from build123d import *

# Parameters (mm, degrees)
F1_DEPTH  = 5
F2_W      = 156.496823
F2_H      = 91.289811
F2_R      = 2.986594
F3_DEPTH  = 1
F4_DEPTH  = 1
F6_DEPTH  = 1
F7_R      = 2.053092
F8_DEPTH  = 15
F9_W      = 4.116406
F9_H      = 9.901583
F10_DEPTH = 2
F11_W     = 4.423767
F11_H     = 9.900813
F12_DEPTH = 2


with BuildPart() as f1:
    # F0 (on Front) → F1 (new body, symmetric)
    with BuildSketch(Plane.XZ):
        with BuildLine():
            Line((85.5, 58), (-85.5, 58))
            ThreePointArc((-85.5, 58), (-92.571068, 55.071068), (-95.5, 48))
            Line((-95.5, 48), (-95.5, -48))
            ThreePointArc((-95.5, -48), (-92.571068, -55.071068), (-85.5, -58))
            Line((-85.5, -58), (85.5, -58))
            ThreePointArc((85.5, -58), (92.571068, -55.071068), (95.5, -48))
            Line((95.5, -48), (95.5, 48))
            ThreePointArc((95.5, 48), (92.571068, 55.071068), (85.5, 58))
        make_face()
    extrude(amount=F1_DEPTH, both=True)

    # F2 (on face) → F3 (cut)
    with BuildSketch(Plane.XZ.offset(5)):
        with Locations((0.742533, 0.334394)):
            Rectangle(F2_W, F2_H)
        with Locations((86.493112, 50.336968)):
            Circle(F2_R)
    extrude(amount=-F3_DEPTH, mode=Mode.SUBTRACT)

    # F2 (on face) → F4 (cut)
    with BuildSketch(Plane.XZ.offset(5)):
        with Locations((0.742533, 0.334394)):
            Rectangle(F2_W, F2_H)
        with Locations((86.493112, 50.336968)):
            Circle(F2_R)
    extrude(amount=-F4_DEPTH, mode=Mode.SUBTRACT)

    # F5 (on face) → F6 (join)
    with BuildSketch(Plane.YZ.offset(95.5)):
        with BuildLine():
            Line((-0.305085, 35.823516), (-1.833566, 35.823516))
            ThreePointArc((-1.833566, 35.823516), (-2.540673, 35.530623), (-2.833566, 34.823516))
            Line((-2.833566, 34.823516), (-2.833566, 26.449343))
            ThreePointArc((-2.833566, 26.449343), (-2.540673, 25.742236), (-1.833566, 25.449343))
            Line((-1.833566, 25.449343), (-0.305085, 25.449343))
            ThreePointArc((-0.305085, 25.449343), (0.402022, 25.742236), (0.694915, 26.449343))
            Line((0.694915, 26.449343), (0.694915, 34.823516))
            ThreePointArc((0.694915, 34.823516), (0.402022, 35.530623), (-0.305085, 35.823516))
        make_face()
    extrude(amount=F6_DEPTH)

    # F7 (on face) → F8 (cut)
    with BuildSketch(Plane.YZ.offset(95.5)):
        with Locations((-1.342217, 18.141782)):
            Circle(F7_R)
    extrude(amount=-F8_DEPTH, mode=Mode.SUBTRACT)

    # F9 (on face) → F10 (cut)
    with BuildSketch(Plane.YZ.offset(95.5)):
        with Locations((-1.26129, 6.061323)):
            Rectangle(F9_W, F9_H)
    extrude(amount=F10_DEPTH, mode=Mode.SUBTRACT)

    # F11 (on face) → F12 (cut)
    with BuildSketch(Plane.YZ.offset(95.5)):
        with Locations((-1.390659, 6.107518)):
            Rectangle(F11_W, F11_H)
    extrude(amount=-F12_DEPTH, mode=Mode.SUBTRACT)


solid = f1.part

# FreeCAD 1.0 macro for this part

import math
import FreeCAD as App
import Part
import Sketcher
Q = App.Units.Quantity

doc = App.newDocument("Part")
body = doc.addObject("PartDesign::Body", "Body")

# Sketch on XZ plane
sketch1 = body.newObject("Sketcher::SketchObject", "Sketch")
sketch1.AttachmentSupport = (doc.getObject("XZ_Plane"), [""])
sketch1.MapMode = "FlatFace"
sketch1.addGeometry([
    Part.LineSegment(App.Vector(86, 58, 0), App.Vector(-86, 58, 0)),  # 0
    Part.ArcOfCircle(Part.Circle(App.Vector(-86, 48, 0), App.Vector(0, 0, 1), 10), math.radians(90), math.radians(180)),  # 1
    Part.LineSegment(App.Vector(-96, 48, 0), App.Vector(-96, -48, 0)),  # 2
    Part.ArcOfCircle(Part.Circle(App.Vector(-86, -48, 0), App.Vector(0, 0, 1), 10), math.radians(180), math.radians(270)),  # 3
    Part.LineSegment(App.Vector(-86, -58, 0), App.Vector(86, -58, 0)),  # 4
    Part.ArcOfCircle(Part.Circle(App.Vector(86, -48, 0), App.Vector(0, 0, 1), 10), math.radians(-90), math.radians(0)),  # 5
    Part.LineSegment(App.Vector(96, -48, 0), App.Vector(96, 48, 0)),  # 6
    Part.ArcOfCircle(Part.Circle(App.Vector(86, 48, 0), App.Vector(0, 0, 1), 10), math.radians(0), math.radians(90)),  # 7
], False)
sketch1.addConstraint([
    Sketcher.Constraint("Tangent", 0, 2, 1, 1),
    Sketcher.Constraint("Tangent", 1, 2, 2, 1),
    Sketcher.Constraint("Tangent", 2, 2, 3, 1),
    Sketcher.Constraint("Tangent", 3, 2, 4, 1),
    Sketcher.Constraint("Tangent", 4, 2, 5, 1),
    Sketcher.Constraint("Tangent", 5, 2, 6, 1),
    Sketcher.Constraint("Tangent", 6, 2, 7, 1),
    Sketcher.Constraint("Tangent", 7, 2, 0, 1),
    Sketcher.Constraint("Horizontal", 0),
    Sketcher.Constraint("Vertical", 2),
    Sketcher.Constraint("Horizontal", 4),
    Sketcher.Constraint("Vertical", 6),
    Sketcher.Constraint("Equal", 1, 3),
    Sketcher.Constraint("Equal", 3, 5),
    Sketcher.Constraint("Equal", 5, 7),
    Sketcher.Constraint("Symmetric", 1, 3, 5, 3, -1, 1),
    Sketcher.Constraint("Radius", 1, Q("9.999999 mm")),
    Sketcher.Constraint("DistanceX", 0, 2, 0, 1, Q("171 mm")),
    Sketcher.Constraint("DistanceY", 2, 2, 2, 1, Q("96 mm")),
])
pad1 = body.newObject("PartDesign::Pad", "Pad")
pad1.Profile = sketch1
pad1.Length = 10
pad1.Midplane = True

# Sketch on XZ plane
sketch2 = body.newObject("Sketcher::SketchObject", "Sketch001")
sketch2.AttachmentSupport = (doc.getObject("XZ_Plane"), [""])
sketch2.MapMode = "FlatFace"
sketch2.AttachmentOffset = App.Placement(App.Vector(0, 0, 5), App.Rotation())
sketch2.addGeometry([
    Part.LineSegment(App.Vector(-77.5, 46, 0), App.Vector(-77.5, -45.3, 0)),  # 0
    Part.LineSegment(App.Vector(-77.5, -45.3, 0), App.Vector(79, -45.3, 0)),  # 1
    Part.LineSegment(App.Vector(79, -45.3, 0), App.Vector(79, 46, 0)),  # 2
    Part.LineSegment(App.Vector(79, 46, 0), App.Vector(-77.5, 46, 0)),  # 3
    Part.Circle(App.Vector(86.5, 50.3, 0), App.Vector(0, 0, 1), 3),  # 4
], False)
sketch2.addConstraint([
    Sketcher.Constraint("Coincident", 0, 2, 1, 1),
    Sketcher.Constraint("Coincident", 1, 2, 2, 1),
    Sketcher.Constraint("Coincident", 2, 2, 3, 1),
    Sketcher.Constraint("Coincident", 3, 2, 0, 1),
    Sketcher.Constraint("Vertical", 0),
    Sketcher.Constraint("Horizontal", 1),
    Sketcher.Constraint("Vertical", 2),
    Sketcher.Constraint("Horizontal", 3),
    Sketcher.Constraint("Diameter", 4, Q("5.973188 mm")),
    Sketcher.Constraint("DistanceY", 0, 2, 0, 1, Q("91.289811 mm")),
    Sketcher.Constraint("DistanceY", -1, 1, 2, 2, Q("45.9793 mm")),
    Sketcher.Constraint("DistanceX", 1, 1, 1, 2, Q("156.496823 mm")),
    Sketcher.Constraint("DistanceX", -1, 1, 4, 3, Q("86.493112 mm")),
    Sketcher.Constraint("DistanceX", 0, 2, -1, 1, Q("77.505878 mm")),
    Sketcher.Constraint("DistanceY", 0, 2, 4, 3, Q("95.64748 mm")),
])
pocket1 = body.newObject("PartDesign::Pocket", "Pocket")
pocket1.Profile = sketch2
pocket1.Length = 1

# Sketch on XZ plane
sketch3 = body.newObject("Sketcher::SketchObject", "Sketch002")
sketch3.AttachmentSupport = (doc.getObject("XZ_Plane"), [""])
sketch3.MapMode = "FlatFace"
sketch3.AttachmentOffset = App.Placement(App.Vector(0, 0, 5), App.Rotation())
sketch3.addGeometry([
    Part.LineSegment(App.Vector(-77.5, 46, 0), App.Vector(-77.5, -45.3, 0)),  # 0
    Part.LineSegment(App.Vector(-77.5, -45.3, 0), App.Vector(79, -45.3, 0)),  # 1
    Part.LineSegment(App.Vector(79, -45.3, 0), App.Vector(79, 46, 0)),  # 2
    Part.LineSegment(App.Vector(79, 46, 0), App.Vector(-77.5, 46, 0)),  # 3
    Part.Circle(App.Vector(86.5, 50.3, 0), App.Vector(0, 0, 1), 3),  # 4
], False)
sketch3.addConstraint([
    Sketcher.Constraint("Coincident", 0, 2, 1, 1),
    Sketcher.Constraint("Coincident", 1, 2, 2, 1),
    Sketcher.Constraint("Coincident", 2, 2, 3, 1),
    Sketcher.Constraint("Coincident", 3, 2, 0, 1),
    Sketcher.Constraint("Vertical", 0),
    Sketcher.Constraint("Horizontal", 1),
    Sketcher.Constraint("Vertical", 2),
    Sketcher.Constraint("Horizontal", 3),
    Sketcher.Constraint("Diameter", 4, Q("5.973188 mm")),
    Sketcher.Constraint("DistanceY", 0, 2, 0, 1, Q("91.289811 mm")),
    Sketcher.Constraint("DistanceY", -1, 1, 2, 2, Q("45.9793 mm")),
    Sketcher.Constraint("DistanceX", 1, 1, 1, 2, Q("156.496823 mm")),
    Sketcher.Constraint("DistanceX", -1, 1, 4, 3, Q("86.493112 mm")),
    Sketcher.Constraint("DistanceX", 0, 2, -1, 1, Q("77.505878 mm")),
    Sketcher.Constraint("DistanceY", 0, 2, 4, 3, Q("95.64748 mm")),
])
pocket2 = body.newObject("PartDesign::Pocket", "Pocket001")
pocket2.Profile = sketch3
pocket2.Length = 1

# Sketch on YZ plane
sketch4 = body.newObject("Sketcher::SketchObject", "Sketch003")
sketch4.AttachmentSupport = (doc.getObject("YZ_Plane"), [""])
sketch4.MapMode = "FlatFace"
sketch4.AttachmentOffset = App.Placement(App.Vector(0, 0, 95.5), App.Rotation())
sketch4.addGeometry([
    Part.LineSegment(App.Vector(-0.3, 35.8, 0), App.Vector(-1.8, 35.8, 0)),  # 0
    Part.ArcOfCircle(Part.Circle(App.Vector(-1.8, 34.8, 0), App.Vector(0, 0, 1), 1), math.radians(90), math.radians(180)),  # 1
    Part.LineSegment(App.Vector(-2.8, 34.8, 0), App.Vector(-2.8, 26.4, 0)),  # 2
    Part.ArcOfCircle(Part.Circle(App.Vector(-1.8, 26.4, 0), App.Vector(0, 0, 1), 1), math.radians(180), math.radians(270)),  # 3
    Part.LineSegment(App.Vector(-1.8, 25.4, 0), App.Vector(-0.3, 25.4, 0)),  # 4
    Part.ArcOfCircle(Part.Circle(App.Vector(-0.3, 26.4, 0), App.Vector(0, 0, 1), 1), math.radians(-90), math.radians(0)),  # 5
    Part.LineSegment(App.Vector(0.7, 26.4, 0), App.Vector(0.7, 34.8, 0)),  # 6
    Part.ArcOfCircle(Part.Circle(App.Vector(-0.3, 34.8, 0), App.Vector(0, 0, 1), 1), math.radians(0), math.radians(90)),  # 7
], False)
sketch4.addConstraint([
    Sketcher.Constraint("Tangent", 0, 2, 1, 1),
    Sketcher.Constraint("Tangent", 1, 2, 2, 1),
    Sketcher.Constraint("Tangent", 2, 2, 3, 1),
    Sketcher.Constraint("Tangent", 3, 2, 4, 1),
    Sketcher.Constraint("Tangent", 4, 2, 5, 1),
    Sketcher.Constraint("Tangent", 5, 2, 6, 1),
    Sketcher.Constraint("Tangent", 6, 2, 7, 1),
    Sketcher.Constraint("Tangent", 7, 2, 0, 1),
    Sketcher.Constraint("Horizontal", 0),
    Sketcher.Constraint("Vertical", 2),
    Sketcher.Constraint("Horizontal", 4),
    Sketcher.Constraint("Vertical", 6),
    Sketcher.Constraint("Equal", 1, 3),
    Sketcher.Constraint("Equal", 3, 5),
    Sketcher.Constraint("Equal", 5, 7),
    Sketcher.Constraint("Radius", 1, Q("0.999999 mm")),
    Sketcher.Constraint("DistanceX", 0, 2, 0, 1, Q("1.528481 mm")),
    Sketcher.Constraint("DistanceY", 2, 2, 2, 1, Q("8.374173 mm")),
    Sketcher.Constraint("DistanceX", 1, 3, -1, 1, Q("1.833567 mm")),
    Sketcher.Constraint("DistanceY", -1, 1, 1, 3, Q("34.823517 mm")),
])
pad2 = body.newObject("PartDesign::Pad", "Pad001")
pad2.Profile = sketch4
pad2.Length = 1

# Sketch on YZ plane
sketch5 = body.newObject("Sketcher::SketchObject", "Sketch004")
sketch5.AttachmentSupport = (doc.getObject("YZ_Plane"), [""])
sketch5.MapMode = "FlatFace"
sketch5.AttachmentOffset = App.Placement(App.Vector(0, 0, 95.5), App.Rotation())
sketch5.addGeometry(Part.Circle(App.Vector(-1.3, 18.1, 0), App.Vector(0, 0, 1), 2.1), False)
sketch5.addConstraint([
    Sketcher.Constraint("Diameter", 0, Q("4.106184 mm")),
    Sketcher.Constraint("DistanceY", -1, 1, 0, 3, Q("18.141782 mm")),
    Sketcher.Constraint("DistanceX", 0, 3, -1, 1, Q("1.342217 mm")),
])
pocket3 = body.newObject("PartDesign::Pocket", "Pocket002")
pocket3.Profile = sketch5
pocket3.Length = 15

# Sketch on YZ plane
sketch6 = body.newObject("Sketcher::SketchObject", "Sketch005")
sketch6.AttachmentSupport = (doc.getObject("YZ_Plane"), [""])
sketch6.MapMode = "FlatFace"
sketch6.AttachmentOffset = App.Placement(App.Vector(0, 0, 95.5), App.Rotation())
sketch6.addGeometry([
    Part.LineSegment(App.Vector(-3.3, 11, 0), App.Vector(-3.3, 1.1, 0)),
    Part.LineSegment(App.Vector(-3.3, 1.1, 0), App.Vector(0.8, 1.1, 0)),
    Part.LineSegment(App.Vector(0.8, 1.1, 0), App.Vector(0.8, 11, 0)),
    Part.LineSegment(App.Vector(0.8, 11, 0), App.Vector(-3.3, 11, 0)),
], False)
sketch6.addConstraint([
    Sketcher.Constraint("Coincident", 0, 2, 1, 1),
    Sketcher.Constraint("Coincident", 1, 2, 2, 1),
    Sketcher.Constraint("Coincident", 2, 2, 3, 1),
    Sketcher.Constraint("Coincident", 3, 2, 0, 1),
    Sketcher.Constraint("Vertical", 0),
    Sketcher.Constraint("Horizontal", 1),
    Sketcher.Constraint("Vertical", 2),
    Sketcher.Constraint("Horizontal", 3),
    Sketcher.Constraint("DistanceX", 1, 1, 1, 2, Q("4.116406 mm")),
    Sketcher.Constraint("DistanceY", 0, 2, 0, 1, Q("9.901583 mm")),
    Sketcher.Constraint("DistanceY", -1, 1, 0, 2, Q("1.110532 mm")),
    Sketcher.Constraint("DistanceX", 0, 2, -1, 1, Q("3.319493 mm")),
])
pocket4 = body.newObject("PartDesign::Pocket", "Pocket003")
pocket4.Profile = sketch6
pocket4.Length = 2
pocket4.Reversed = True

# Sketch on YZ plane
sketch7 = body.newObject("Sketcher::SketchObject", "Sketch006")
sketch7.AttachmentSupport = (doc.getObject("YZ_Plane"), [""])
sketch7.MapMode = "FlatFace"
sketch7.AttachmentOffset = App.Placement(App.Vector(0, 0, 95.5), App.Rotation())
sketch7.addGeometry([
    Part.LineSegment(App.Vector(-3.6, 11.1, 0), App.Vector(-3.6, 1.2, 0)),
    Part.LineSegment(App.Vector(-3.6, 1.2, 0), App.Vector(0.8, 1.2, 0)),
    Part.LineSegment(App.Vector(0.8, 1.2, 0), App.Vector(0.8, 11.1, 0)),
    Part.LineSegment(App.Vector(0.8, 11.1, 0), App.Vector(-3.6, 11.1, 0)),
], False)
sketch7.addConstraint([
    Sketcher.Constraint("Coincident", 0, 2, 1, 1),
    Sketcher.Constraint("Coincident", 1, 2, 2, 1),
    Sketcher.Constraint("Coincident", 2, 2, 3, 1),
    Sketcher.Constraint("Coincident", 3, 2, 0, 1),
    Sketcher.Constraint("Vertical", 0),
    Sketcher.Constraint("Horizontal", 1),
    Sketcher.Constraint("Vertical", 2),
    Sketcher.Constraint("Horizontal", 3),
    Sketcher.Constraint("DistanceX", 1, 1, 1, 2, Q("4.423767 mm")),
    Sketcher.Constraint("DistanceY", 0, 2, 0, 1, Q("9.900813 mm")),
    Sketcher.Constraint("DistanceY", -1, 1, 0, 2, Q("1.157112 mm")),
    Sketcher.Constraint("DistanceX", 0, 2, -1, 1, Q("3.602543 mm")),
])
pocket5 = body.newObject("PartDesign::Pocket", "Pocket004")
pocket5.Profile = sketch7
pocket5.Length = 2

doc.recompute()
